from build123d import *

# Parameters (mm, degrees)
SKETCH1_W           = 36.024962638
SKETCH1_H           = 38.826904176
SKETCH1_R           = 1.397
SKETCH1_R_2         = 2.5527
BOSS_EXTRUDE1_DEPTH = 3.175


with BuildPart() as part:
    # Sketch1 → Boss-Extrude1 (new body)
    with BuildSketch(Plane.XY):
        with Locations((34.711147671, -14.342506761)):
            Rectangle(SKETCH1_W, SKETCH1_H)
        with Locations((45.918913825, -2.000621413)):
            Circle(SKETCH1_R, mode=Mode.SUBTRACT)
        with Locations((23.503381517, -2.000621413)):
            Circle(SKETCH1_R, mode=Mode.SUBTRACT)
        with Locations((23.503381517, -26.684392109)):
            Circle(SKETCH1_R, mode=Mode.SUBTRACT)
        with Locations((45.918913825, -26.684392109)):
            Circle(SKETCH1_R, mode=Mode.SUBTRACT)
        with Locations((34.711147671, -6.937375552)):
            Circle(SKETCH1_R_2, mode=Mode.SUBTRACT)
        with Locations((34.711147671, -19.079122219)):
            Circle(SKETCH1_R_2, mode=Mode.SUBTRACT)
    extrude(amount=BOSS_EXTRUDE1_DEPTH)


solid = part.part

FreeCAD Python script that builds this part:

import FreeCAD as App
import Part
import Sketcher
from FreeCAD import Vector
Q = App.Units.Quantity


def add_polygon(sketch, points):
    """Adds a closed chain of lines whose ends are joined by coincident constraints."""
    first, n = sketch.GeometryCount, len(points)
    for a, b in zip(points, points[1:] + points[:1]):
        sketch.addGeometry(Part.LineSegment(App.Vector(*a, 0), App.Vector(*b, 0)), False)
    for i in range(n):
        sketch.addConstraint(Sketcher.Constraint("Coincident", first + i, 2, first + (i + 1) % n, 1))

doc = App.newDocument("Part")
body = doc.addObject("PartDesign::Body", "Body")

# Sketch on XY plane
sketch1 = body.newObject("Sketcher::SketchObject", "Sketch")
sketch1.AttachmentSupport = (doc.getObject("XY_Plane"), [""])
sketch1.MapMode = "FlatFace"
add_polygon(sketch1, [(16.698666, 5.070945), (16.698666, -33.755959), (52.723629, -33.755959), (52.723629, 5.070945)])  # lines 0-3
sketch1.addGeometry(Part.Circle(Vector(23.503382, -26.684392, 0), Vector(0, 0, 1), 1.397), False)  # 4
sketch1.addGeometry(Part.Circle(Vector(45.918914, -26.684392, 0), Vector(0, 0, 1), 1.397), False)  # 5
sketch1.addGeometry(Part.Circle(Vector(34.711148, -19.079122, 0), Vector(0, 0, 1), 2.5527), False)  # 6
sketch1.addGeometry(Part.Circle(Vector(23.503382, -2.000621, 0), Vector(0, 0, 1), 1.397), False)  # 7
sketch1.addGeometry(Part.Circle(Vector(34.711148, -6.937376, 0), Vector(0, 0, 1), 2.5527), False)  # 8
sketch1.addGeometry(Part.Circle(Vector(45.918914, -2.000621, 0), Vector(0, 0, 1), 1.397), False)  # 9
sketch1.addConstraint([
    Sketcher.Constraint("Vertical", 0),
    Sketcher.Constraint("Horizontal", 1),
    Sketcher.Constraint("Vertical", 2),
    Sketcher.Constraint("Horizontal", 3),
    Sketcher.Constraint("Equal", 4, 5),
    Sketcher.Constraint("Equal", 5, 7),
    Sketcher.Constraint("Equal", 6, 8),
    Sketcher.Constraint("Equal", 7, 9),
    Sketcher.Constraint("Horizontal", 4, 3, 5, 3),
    Sketcher.Constraint("Horizontal", 7, 3, 9, 3),
    Sketcher.Constraint("Vertical", 4, 3, 7, 3),
    Sketcher.Constraint("Vertical", 6, 3, 8, 3),
    Sketcher.Constraint("Vertical", 5, 3, 9, 3),
    Sketcher.Constraint("Diameter", 4, Q("0.11 in")),
    Sketcher.Constraint("Diameter", 6, Q("0.201 in")),
    Sketcher.Constraint("DistanceY", 6, 3, 7, 3, Q("17.078501 mm")),
    Sketcher.Constraint("DistanceX", 1, 1, 1, 2, Q("36.024963 mm")),
    Sketcher.Constraint("DistanceY", 0, 2, 0, 1, Q("38.826904 mm")),
    Sketcher.Constraint("DistanceX", -1, 1, 4, 3, Q("23.503382 mm")),
    Sketcher.Constraint("DistanceY", 7, 3, -1, 1, Q("2.000621 mm")),
    Sketcher.Constraint("DistanceY", 0, 2, -1, 1, Q("33.755959 mm")),
    Sketcher.Constraint("DistanceX", -1, 1, 1, 2, Q("52.723629 mm")),
    Sketcher.Constraint("DistanceY", 4, 3, 6, 3, Q("7.60527 mm")),
    Sketcher.Constraint("DistanceX", 0, 2, 6, 3, Q("18.012481 mm")),
    Sketcher.Constraint("DistanceY", 8, 3, 2, 2, Q("12.008321 mm")),
    Sketcher.Constraint("DistanceX", -1, 1, 5, 3, Q("45.918914 mm")),
])
pad1 = body.newObject("PartDesign::Pad", "Pad")
pad1.Profile = sketch1
pad1.Length = Q("0.125 in")

doc.recompute()
